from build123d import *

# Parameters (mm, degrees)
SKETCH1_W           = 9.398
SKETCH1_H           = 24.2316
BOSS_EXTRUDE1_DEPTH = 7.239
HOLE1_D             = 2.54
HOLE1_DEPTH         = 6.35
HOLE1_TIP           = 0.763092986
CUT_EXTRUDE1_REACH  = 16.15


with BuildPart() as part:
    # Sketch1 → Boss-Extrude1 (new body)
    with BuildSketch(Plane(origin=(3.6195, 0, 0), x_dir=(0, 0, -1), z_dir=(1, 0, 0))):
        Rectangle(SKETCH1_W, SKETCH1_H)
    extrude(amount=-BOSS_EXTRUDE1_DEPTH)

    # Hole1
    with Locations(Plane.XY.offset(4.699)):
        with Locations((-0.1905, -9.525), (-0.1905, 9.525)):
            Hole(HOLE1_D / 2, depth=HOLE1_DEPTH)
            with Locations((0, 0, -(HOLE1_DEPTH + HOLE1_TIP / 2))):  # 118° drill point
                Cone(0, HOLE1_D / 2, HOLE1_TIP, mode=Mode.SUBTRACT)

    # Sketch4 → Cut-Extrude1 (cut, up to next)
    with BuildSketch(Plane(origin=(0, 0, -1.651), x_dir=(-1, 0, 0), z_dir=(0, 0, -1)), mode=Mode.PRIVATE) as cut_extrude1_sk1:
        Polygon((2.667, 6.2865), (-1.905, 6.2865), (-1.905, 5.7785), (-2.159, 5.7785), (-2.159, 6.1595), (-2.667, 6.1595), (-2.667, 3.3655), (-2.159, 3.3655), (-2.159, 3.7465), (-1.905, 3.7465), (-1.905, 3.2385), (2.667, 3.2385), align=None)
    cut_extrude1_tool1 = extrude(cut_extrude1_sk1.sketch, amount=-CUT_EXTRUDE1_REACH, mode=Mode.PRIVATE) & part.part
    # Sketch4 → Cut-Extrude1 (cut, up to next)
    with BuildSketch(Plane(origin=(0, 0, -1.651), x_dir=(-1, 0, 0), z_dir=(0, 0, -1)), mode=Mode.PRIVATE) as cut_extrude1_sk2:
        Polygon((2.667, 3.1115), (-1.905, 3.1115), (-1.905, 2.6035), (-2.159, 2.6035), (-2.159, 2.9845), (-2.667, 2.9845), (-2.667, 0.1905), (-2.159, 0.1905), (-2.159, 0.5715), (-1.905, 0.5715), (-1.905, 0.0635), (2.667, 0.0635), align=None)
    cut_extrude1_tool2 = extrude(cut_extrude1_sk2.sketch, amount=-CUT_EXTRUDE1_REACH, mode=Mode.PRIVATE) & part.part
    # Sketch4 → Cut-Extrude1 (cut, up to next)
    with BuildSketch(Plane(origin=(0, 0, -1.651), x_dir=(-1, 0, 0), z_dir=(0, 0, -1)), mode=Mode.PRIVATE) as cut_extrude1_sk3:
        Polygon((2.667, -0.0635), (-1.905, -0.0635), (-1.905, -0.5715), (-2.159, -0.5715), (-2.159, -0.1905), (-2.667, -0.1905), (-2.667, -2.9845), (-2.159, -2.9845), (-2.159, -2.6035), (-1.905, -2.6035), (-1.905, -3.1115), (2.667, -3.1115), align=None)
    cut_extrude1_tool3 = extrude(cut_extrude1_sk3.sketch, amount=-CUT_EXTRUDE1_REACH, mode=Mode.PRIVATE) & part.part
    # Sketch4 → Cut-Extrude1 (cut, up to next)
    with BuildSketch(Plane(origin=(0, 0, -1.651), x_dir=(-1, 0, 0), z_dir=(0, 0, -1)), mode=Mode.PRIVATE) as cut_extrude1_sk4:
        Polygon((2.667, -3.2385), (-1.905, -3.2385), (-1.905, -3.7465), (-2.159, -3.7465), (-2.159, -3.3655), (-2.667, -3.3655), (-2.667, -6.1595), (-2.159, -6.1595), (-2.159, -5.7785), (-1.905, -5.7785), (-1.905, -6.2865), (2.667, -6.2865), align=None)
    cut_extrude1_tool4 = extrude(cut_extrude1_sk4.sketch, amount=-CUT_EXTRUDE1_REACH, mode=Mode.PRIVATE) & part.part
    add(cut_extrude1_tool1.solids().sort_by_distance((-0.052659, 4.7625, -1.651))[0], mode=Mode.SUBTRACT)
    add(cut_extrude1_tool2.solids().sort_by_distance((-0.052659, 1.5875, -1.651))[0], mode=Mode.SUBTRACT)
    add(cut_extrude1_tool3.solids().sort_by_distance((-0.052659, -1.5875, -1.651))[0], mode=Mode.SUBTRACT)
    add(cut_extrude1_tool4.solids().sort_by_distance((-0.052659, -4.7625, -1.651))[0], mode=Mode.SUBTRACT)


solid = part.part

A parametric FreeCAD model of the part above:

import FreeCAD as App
import Part
import Sketcher
Q = App.Units.Quantity


def add_polygon(sketch, points):
    """Adds a closed chain of lines whose ends are joined by coincident constraints."""
    first, n = sketch.GeometryCount, len(points)
    for a, b in zip(points, points[1:] + points[:1]):
        sketch.addGeometry(Part.LineSegment(App.Vector(*a, 0), App.Vector(*b, 0)), False)
    for i in range(n):
        sketch.addConstraint(Sketcher.Constraint("Coincident", first + i, 2, first + (i + 1) % n, 1))

doc = App.newDocument("Part")
body = doc.addObject("PartDesign::Body", "Body")

# Sketch on YZ plane
sketch1 = body.newObject("Sketcher::SketchObject", "Sketch")
sketch1.AttachmentSupport = (doc.getObject("YZ_Plane"), [""])
sketch1.MapMode = "FlatFace"
sketch1.AttachmentOffset = App.Placement(App.Vector(0, 0, 0.1425 * 25.4), App.Rotation())
add_polygon(sketch1, [(12.1158, 4.699), (-12.1158, 4.699), (-12.1158, -4.699), (12.1158, -4.699)])  # lines 0-3
sketch1.addConstraint(Sketcher.Constraint("Horizontal", 0))
sketch1.addConstraint(Sketcher.Constraint("Vertical", 1))
sketch1.addConstraint(Sketcher.Constraint("Horizontal", 2))
sketch1.addConstraint(Sketcher.Constraint("Vertical", 3))
sketch1.addConstraint(Sketcher.Constraint("Symmetric", 0, 2, 2, 2, -1, 1))
sketch1.addConstraint(Sketcher.Constraint("DistanceY", 1, 2, 1, 1, Q("0.37 in")))
sketch1.addConstraint(Sketcher.Constraint("DistanceX", 0, 2, 0, 1, Q("0.954 in")))
pad1 = body.newObject("PartDesign::Pad", "Pad")
pad1.Profile = sketch1
pad1.Length = Q("0.285 in")
pad1.Reversed = True

# Sketch on XY plane
sketch2 = body.newObject("Sketcher::SketchObject", "Sketch001")
sketch2.AttachmentSupport = (doc.getObject("XY_Plane"), [""])
sketch2.MapMode = "FlatFace"
sketch2.AttachmentOffset = App.Placement(App.Vector(0, 0, 0.185 * 25.4), App.Rotation())
sketch2.addGeometry(Part.Circle(App.Vector(-0.1905, -9.525, 0), App.Vector(0, 0, 1), 1.27), False)
sketch2.addGeometry(Part.Circle(App.Vector(-0.1905, 9.525, 0), App.Vector(0, 0, 1), 1.27), False)
sketch2.addConstraint(Sketcher.Constraint("Equal", 0, 1))
sketch2.addConstraint(Sketcher.Constraint("Symmetric", 0, 3, 1, 3, -1))
sketch2.addConstraint(Sketcher.Constraint("Diameter", 0, Q("0.1 in")))
sketch2.addConstraint(Sketcher.Constraint("DistanceY", 0, 3, 1, 3, Q("0.75 in")))
sketch2.addConstraint(Sketcher.Constraint("DistanceX", 0, 3, -1, 1, Q("0.0075 in")))
doc.recompute()
hole = body.newObject("PartDesign::Hole", "Hole")
hole.Profile = sketch2
hole.ThreadType = "None"
hole.Diameter = Q("0.1 in")
hole.DepthType = "Dimension"
hole.Depth = Q("0.25 in")
hole.DrillPoint = "Angled"
hole.DrillPointAngle = 118

# Sketch on XY plane
sketch3 = body.newObject("Sketcher::SketchObject", "Sketch002")
sketch3.AttachmentSupport = (doc.getObject("XY_Plane"), [""])
sketch3.MapMode = "FlatFace"
sketch3.AttachmentOffset = App.Placement(App.Vector(0, 0, -0.065 * 25.4), App.Rotation())
add_polygon(sketch3, [(-2.667, 6.2865), (1.905, 6.2865), (1.905, 5.7785), (2.159, 5.7785), (2.159, 6.1595), (2.667, 6.1595), (2.667, 3.3655), (2.159, 3.3655), (2.159, 3.7465), (1.905, 3.7465), (1.905, 3.2385), (-2.667, 3.2385)])  # lines 0-11
sketch3.addConstraint(Sketcher.Constraint("Horizontal", 0))
sketch3.addConstraint(Sketcher.Constraint("Vertical", 1))
sketch3.addConstraint(Sketcher.Constraint("Horizontal", 2))
sketch3.addConstraint(Sketcher.Constraint("Vertical", 3))
sketch3.addConstraint(Sketcher.Constraint("Horizontal", 4))
sketch3.addConstraint(Sketcher.Constraint("Vertical", 5))
sketch3.addConstraint(Sketcher.Constraint("Horizontal", 6))
sketch3.addConstraint(Sketcher.Constraint("Vertical", 7))
sketch3.addConstraint(Sketcher.Constraint("Horizontal", 8))
sketch3.addConstraint(Sketcher.Constraint("Vertical", 9))
sketch3.addConstraint(Sketcher.Constraint("Horizontal", 10))
sketch3.addConstraint(Sketcher.Constraint("Vertical", 11))
sketch3.addConstraint(Sketcher.Constraint("Vertical", 3, 2, 6, 2))
sketch3.addConstraint(Sketcher.Constraint("Vertical", 1, 2, 8, 2))
sketch3.addConstraint(Sketcher.Constraint("Equal", 6, 1))
sketch3.addConstraint(Sketcher.Constraint("Equal", 3, 7))
sketch3.addConstraint(Sketcher.Constraint("Equal", 1, 9))
sketch3.addConstraint(Sketcher.Constraint("DistanceX", 0, 1, 0, 2, Q("0.18 in")))
sketch3.addConstraint(Sketcher.Constraint("DistanceX", 2, 1, 2, 2, Q("0.01 in")))
sketch3.addConstraint(Sketcher.Constraint("DistanceX", 4, 1, 4, 2, Q("0.02 in")))
sketch3.addConstraint(Sketcher.Constraint("DistanceY", 5, 2, 5, 1, Q("0.11 in")))
sketch3.addConstraint(Sketcher.Constraint("DistanceY", 11, 1, 11, 2, Q("0.12 in")))
sketch3.addConstraint(Sketcher.Constraint("DistanceX", -1, 1, 0, 2, Q("0.075 in")))
sketch3.addConstraint(Sketcher.Constraint("DistanceY", -1, 1, 0, 2, Q("0.2475 in")))
pocket1 = body.newObject("PartDesign::Pocket", "Pocket")
pocket1.Profile = sketch3
pocket1.Type = "UpToFirst"
pocket1.Reversed = True

# Sketch on XY plane
sketch4 = body.newObject("Sketcher::SketchObject", "Sketch003")
sketch4.AttachmentSupport = (doc.getObject("XY_Plane"), [""])
sketch4.MapMode = "FlatFace"
sketch4.AttachmentOffset = App.Placement(App.Vector(0, 0, -0.065 * 25.4), App.Rotation())
add_polygon(sketch4, [(-2.667, 3.1115), (1.905, 3.1115), (1.905, 2.6035), (2.159, 2.6035), (2.159, 2.9845), (2.667, 2.9845), (2.667, 0.1905), (2.159, 0.1905), (2.159, 0.5715), (1.905, 0.5715), (1.905, 0.0635), (-2.667, 0.0635)])  # lines 0-11
sketch4.addConstraint(Sketcher.Constraint("Horizontal", 0))
sketch4.addConstraint(Sketcher.Constraint("Vertical", 1))
sketch4.addConstraint(Sketcher.Constraint("Horizontal", 2))
sketch4.addConstraint(Sketcher.Constraint("Vertical", 3))
sketch4.addConstraint(Sketcher.Constraint("Horizontal", 4))
sketch4.addConstraint(Sketcher.Constraint("Vertical", 5))
sketch4.addConstraint(Sketcher.Constraint("Horizontal", 6))
sketch4.addConstraint(Sketcher.Constraint("Vertical", 7))
sketch4.addConstraint(Sketcher.Constraint("Horizontal", 8))
sketch4.addConstraint(Sketcher.Constraint("Vertical", 9))
sketch4.addConstraint(Sketcher.Constraint("Horizontal", 10))
sketch4.addConstraint(Sketcher.Constraint("Vertical", 11))
sketch4.addConstraint(Sketcher.Constraint("Vertical", 3, 2, 6, 2))
sketch4.addConstraint(Sketcher.Constraint("Vertical", 1, 2, 8, 2))
sketch4.addConstraint(Sketcher.Constraint("Equal", 6, 1))
sketch4.addConstraint(Sketcher.Constraint("Equal", 3, 7))
sketch4.addConstraint(Sketcher.Constraint("Equal", 1, 9))
sketch4.addConstraint(Sketcher.Constraint("DistanceX", 0, 1, 0, 2, Q("0.18 in")))
sketch4.addConstraint(Sketcher.Constraint("DistanceX", 2, 1, 2, 2, Q("0.01 in")))
sketch4.addConstraint(Sketcher.Constraint("DistanceX", 4, 1, 4, 2, Q("0.02 in")))
sketch4.addConstraint(Sketcher.Constraint("DistanceY", 5, 2, 5, 1, Q("0.11 in")))
sketch4.addConstraint(Sketcher.Constraint("DistanceY", 11, 1, 11, 2, Q("0.12 in")))
sketch4.addConstraint(Sketcher.Constraint("DistanceX", -1, 1, 0, 2, Q("0.075 in")))
sketch4.addConstraint(Sketcher.Constraint("DistanceY", -1, 1, 0, 2, Q("0.1225 in")))
pocket2 = body.newObject("PartDesign::Pocket", "Pocket001")
pocket2.Profile = sketch4
pocket2.Type = "UpToFirst"
pocket2.Reversed = True

# Sketch on XY plane
sketch5 = body.newObject("Sketcher::SketchObject", "Sketch004")
sketch5.AttachmentSupport = (doc.getObject("XY_Plane"), [""])
sketch5.MapMode = "FlatFace"
sketch5.AttachmentOffset = App.Placement(App.Vector(0, 0, -0.065 * 25.4), App.Rotation())
add_polygon(sketch5, [(-2.667, -0.0635), (1.905, -0.0635), (1.905, -0.5715), (2.159, -0.5715), (2.159, -0.1905), (2.667, -0.1905), (2.667, -2.9845), (2.159, -2.9845), (2.159, -2.6035), (1.905, -2.6035), (1.905, -3.1115), (-2.667, -3.1115)])  # lines 0-11
sketch5.addConstraint(Sketcher.Constraint("Horizontal", 0))
sketch5.addConstraint(Sketcher.Constraint("Vertical", 1))
sketch5.addConstraint(Sketcher.Constraint("Horizontal", 2))
sketch5.addConstraint(Sketcher.Constraint("Vertical", 3))
sketch5.addConstraint(Sketcher.Constraint("Horizontal", 4))
sketch5.addConstraint(Sketcher.Constraint("Vertical", 5))
sketch5.addConstraint(Sketcher.Constraint("Horizontal", 6))
sketch5.addConstraint(Sketcher.Constraint("Vertical", 7))
sketch5.addConstraint(Sketcher.Constraint("Horizontal", 8))
sketch5.addConstraint(Sketcher.Constraint("Vertical", 9))
sketch5.addConstraint(Sketcher.Constraint("Horizontal", 10))
sketch5.addConstraint(Sketcher.Constraint("Vertical", 11))
sketch5.addConstraint(Sketcher.Constraint("Vertical", 3, 2, 6, 2))
sketch5.addConstraint(Sketcher.Constraint("Vertical", 1, 2, 8, 2))
sketch5.addConstraint(Sketcher.Constraint("Equal", 6, 1))
sketch5.addConstraint(Sketcher.Constraint("Equal", 3, 7))
sketch5.addConstraint(Sketcher.Constraint("Equal", 1, 9))
sketch5.addConstraint(Sketcher.Constraint("DistanceX", 0, 1, 0, 2, Q("0.18 in")))
sketch5.addConstraint(Sketcher.Constraint("DistanceX", 2, 1, 2, 2, Q("0.01 in")))
sketch5.addConstraint(Sketcher.Constraint("DistanceX", 4, 1, 4, 2, Q("0.02 in")))
sketch5.addConstraint(Sketcher.Constraint("DistanceY", 5, 2, 5, 1, Q("0.11 in")))
sketch5.addConstraint(Sketcher.Constraint("DistanceY", 11, 1, 11, 2, Q("0.12 in")))
sketch5.addConstraint(Sketcher.Constraint("DistanceX", -1, 1, 0, 2, Q("0.075 in")))
sketch5.addConstraint(Sketcher.Constraint("DistanceY", 0, 2, -1, 1, Q("0.0025 in")))
pocket3 = body.newObject("PartDesign::Pocket", "Pocket002")
pocket3.Profile = sketch5
pocket3.Type = "UpToFirst"
pocket3.Reversed = True

# Sketch on XY plane
sketch6 = body.newObject("Sketcher::SketchObject", "Sketch005")
sketch6.AttachmentSupport = (doc.getObject("XY_Plane"), [""])
sketch6.MapMode = "FlatFace"
sketch6.AttachmentOffset = App.Placement(App.Vector(0, 0, -0.065 * 25.4), App.Rotation())
add_polygon(sketch6, [(-2.667, -3.2385), (1.905, -3.2385), (1.905, -3.7465), (2.159, -3.7465), (2.159, -3.3655), (2.667, -3.3655), (2.667, -6.1595), (2.159, -6.1595), (2.159, -5.7785), (1.905, -5.7785), (1.905, -6.2865), (-2.667, -6.2865)])  # lines 0-11
sketch6.addConstraint(Sketcher.Constraint("Horizontal", 0))
sketch6.addConstraint(Sketcher.Constraint("Vertical", 1))
sketch6.addConstraint(Sketcher.Constraint("Horizontal", 2))
sketch6.addConstraint(Sketcher.Constraint("Vertical", 3))
sketch6.addConstraint(Sketcher.Constraint("Horizontal", 4))
sketch6.addConstraint(Sketcher.Constraint("Vertical", 5))
sketch6.addConstraint(Sketcher.Constraint("Horizontal", 6))
sketch6.addConstraint(Sketcher.Constraint("Vertical", 7))
sketch6.addConstraint(Sketcher.Constraint("Horizontal", 8))
sketch6.addConstraint(Sketcher.Constraint("Vertical", 9))
sketch6.addConstraint(Sketcher.Constraint("Horizontal", 10))
sketch6.addConstraint(Sketcher.Constraint("Vertical", 11))
sketch6.addConstraint(Sketcher.Constraint("Vertical", 3, 2, 6, 2))
sketch6.addConstraint(Sketcher.Constraint("Vertical", 1, 2, 8, 2))
sketch6.addConstraint(Sketcher.Constraint("Equal", 6, 1))
sketch6.addConstraint(Sketcher.Constraint("Equal", 3, 7))
sketch6.addConstraint(Sketcher.Constraint("Equal", 1, 9))
sketch6.addConstraint(Sketcher.Constraint("DistanceX", 0, 1, 0, 2, Q("0.18 in")))
sketch6.addConstraint(Sketcher.Constraint("DistanceX", 2, 1, 2, 2, Q("0.01 in")))
sketch6.addConstraint(Sketcher.Constraint("DistanceX", 4, 1, 4, 2, Q("0.02 in")))
sketch6.addConstraint(Sketcher.Constraint("DistanceY", 5, 2, 5, 1, Q("0.11 in")))
sketch6.addConstraint(Sketcher.Constraint("DistanceY", 11, 1, 11, 2, Q("0.12 in")))
sketch6.addConstraint(Sketcher.Constraint("DistanceX", -1, 1, 0, 2, Q("0.075 in")))
sketch6.addConstraint(Sketcher.Constraint("DistanceY", 0, 2, -1, 1, Q("0.1275 in")))
pocket4 = body.newObject("PartDesign::Pocket", "Pocket003")
pocket4.Profile = sketch6
pocket4.Type = "UpToFirst"
pocket4.Reversed = True

doc.recompute()
